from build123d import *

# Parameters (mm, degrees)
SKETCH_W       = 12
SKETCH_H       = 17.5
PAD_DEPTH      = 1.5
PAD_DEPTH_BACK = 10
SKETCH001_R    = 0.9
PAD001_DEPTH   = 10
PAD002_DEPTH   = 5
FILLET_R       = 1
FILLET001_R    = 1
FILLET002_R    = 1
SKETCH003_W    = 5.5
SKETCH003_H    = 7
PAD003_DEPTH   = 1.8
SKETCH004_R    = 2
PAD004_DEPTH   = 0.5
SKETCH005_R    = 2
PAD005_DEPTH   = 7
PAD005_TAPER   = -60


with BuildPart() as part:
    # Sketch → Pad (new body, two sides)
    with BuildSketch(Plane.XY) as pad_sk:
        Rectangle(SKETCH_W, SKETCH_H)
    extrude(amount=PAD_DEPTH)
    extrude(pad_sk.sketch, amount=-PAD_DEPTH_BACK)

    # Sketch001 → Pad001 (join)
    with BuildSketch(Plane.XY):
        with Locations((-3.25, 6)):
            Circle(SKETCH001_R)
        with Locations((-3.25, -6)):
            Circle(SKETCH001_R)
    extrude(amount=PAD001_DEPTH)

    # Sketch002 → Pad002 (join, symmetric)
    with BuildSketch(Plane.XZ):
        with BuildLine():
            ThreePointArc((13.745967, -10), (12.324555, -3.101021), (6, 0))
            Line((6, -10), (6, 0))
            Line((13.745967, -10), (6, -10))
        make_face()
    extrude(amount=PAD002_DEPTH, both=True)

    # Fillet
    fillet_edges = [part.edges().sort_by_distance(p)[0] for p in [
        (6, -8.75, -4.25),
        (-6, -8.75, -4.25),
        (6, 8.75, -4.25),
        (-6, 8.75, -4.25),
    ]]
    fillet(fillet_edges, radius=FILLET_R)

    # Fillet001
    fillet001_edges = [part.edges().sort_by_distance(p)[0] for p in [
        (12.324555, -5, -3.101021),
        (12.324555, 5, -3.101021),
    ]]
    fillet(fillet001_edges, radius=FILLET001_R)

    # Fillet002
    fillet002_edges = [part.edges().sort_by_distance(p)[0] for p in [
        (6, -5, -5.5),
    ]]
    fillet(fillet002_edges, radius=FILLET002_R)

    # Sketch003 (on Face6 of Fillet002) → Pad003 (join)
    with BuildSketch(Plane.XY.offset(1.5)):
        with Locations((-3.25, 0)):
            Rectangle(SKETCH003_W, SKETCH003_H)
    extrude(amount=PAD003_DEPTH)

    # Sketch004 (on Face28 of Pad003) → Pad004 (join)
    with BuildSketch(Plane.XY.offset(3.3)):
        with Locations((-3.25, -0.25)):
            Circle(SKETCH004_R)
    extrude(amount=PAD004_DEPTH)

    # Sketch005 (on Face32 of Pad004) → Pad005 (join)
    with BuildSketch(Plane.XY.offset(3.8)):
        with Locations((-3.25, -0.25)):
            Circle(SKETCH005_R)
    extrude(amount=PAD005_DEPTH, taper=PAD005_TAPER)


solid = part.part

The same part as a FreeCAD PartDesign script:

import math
import FreeCAD as App
import Part
import Sketcher

V = App.Vector


def edges_at(feature, points):
    """Names of the edges that pass closest to the given points."""
    edges = feature.Shape.Edges
    near = lambda p: min(range(len(edges)), key=lambda i: edges[i].distToShape(Part.Vertex(*p))[0])
    return sorted({f"Edge{near(p) + 1}" for p in points})

doc = App.newDocument("Part")
body = doc.addObject("PartDesign::Body", "Body")

# Sketch on XY plane
sketch1 = body.newObject("Sketcher::SketchObject", "Sketch")
sketch1.AttachmentSupport = (doc.getObject("XY_Plane"), [""])
sketch1.MapMode = "FlatFace"
sketch1.addGeometry([
    Part.LineSegment(V(-6, 9, 0), V(-6, -9, 0)),
    Part.LineSegment(V(-6, -9, 0), V(6, -9, 0)),
    Part.LineSegment(V(6, -9, 0), V(6, 9, 0)),
    Part.LineSegment(V(6, 9, 0), V(-6, 9, 0)),
], False)
sketch1.addConstraint([
    Sketcher.Constraint("Coincident", 0, 2, 1, 1),
    Sketcher.Constraint("Coincident", 1, 2, 2, 1),
    Sketcher.Constraint("Coincident", 2, 2, 3, 1),
    Sketcher.Constraint("Coincident", 3, 2, 0, 1),
    Sketcher.Constraint("Vertical", 0),
    Sketcher.Constraint("Horizontal", 1),
    Sketcher.Constraint("Vertical", 2),
    Sketcher.Constraint("Horizontal", 3),
    Sketcher.Constraint("Symmetric", 0, 2, 2, 2, -1, 1),
    Sketcher.Constraint("DistanceX", 1, 1, 1, 2, 12.0),
    Sketcher.Constraint("DistanceY", 0, 2, 0, 1, 17.5),
])
pad1 = body.newObject("PartDesign::Pad", "Pad")
pad1.Profile = sketch1
pad1.Type = "TwoLengths"
pad1.Length = 1.5
pad1.Length2 = 10

# Sketch on XY plane
sketch2 = body.newObject("Sketcher::SketchObject", "Sketch001")
sketch2.AttachmentSupport = (doc.getObject("XY_Plane"), [""])
sketch2.MapMode = "FlatFace"
sketch2.addGeometry([
    Part.Circle(V(-3.2, 6, 0), V(0, 0, 1), 0.9),
    Part.Circle(V(-3.2, -6, 0), V(0, 0, 1), 0.9),
], False)
sketch2.addConstraint([
    Sketcher.Constraint("Equal", 0, 1),
    Sketcher.Constraint("Symmetric", 0, 3, 1, 3, -1),
    Sketcher.Constraint("Diameter", 0, 1.8),
    Sketcher.Constraint("DistanceY", -1, 1, 0, 3, 6.0),
    Sketcher.Constraint("DistanceX", 0, 3, -1, 1, 3.25),
])
pad2 = body.newObject("PartDesign::Pad", "Pad001")
pad2.Profile = sketch2
pad2.Length = 10

# Sketch on XZ plane
sketch3 = body.newObject("Sketcher::SketchObject", "Sketch002")
sketch3.AttachmentSupport = (doc.getObject("XZ_Plane"), [""])
sketch3.MapMode = "FlatFace"
sketch3.addGeometry([
    Part.ArcOfCircle(Part.Circle(V(6, -8, 0), V(0, 0, 1), 8), math.radians(-14), math.radians(90)),
    Part.LineSegment(V(6, 0, 0), V(6, -10, 0)),
    Part.LineSegment(V(6, -10, 0), V(14, -10, 0)),
], False)
sketch3.addConstraint([
    Sketcher.Constraint("Coincident", 0, 2, 1, 1),
    Sketcher.Constraint("Coincident", 1, 2, 2, 1),
    Sketcher.Constraint("Coincident", 2, 2, 0, 1),
    Sketcher.Constraint("Vertical", 1),
    Sketcher.Constraint("Horizontal", 2),
    Sketcher.Constraint("PointOnObject", 0, 2, -1),
    Sketcher.Constraint("Radius", 0, 8.000001),
    Sketcher.Constraint("DistanceY", 1, 2, 1, 1, 10.0),
    Sketcher.Constraint("DistanceX", -1, 1, 0, 3, 5.999999),
    Sketcher.Constraint("DistanceX", -1, 1, 0, 2, 6.0),
])
pad3 = body.newObject("PartDesign::Pad", "Pad002")
pad3.Profile = sketch3
pad3.Length = 10
pad3.Midplane = True
doc.recompute()

fillet = body.newObject("PartDesign::Fillet", "Fillet")
fillet.Base = (pad3, edges_at(pad3, [
    (6, -8.75, -4.25),
    (-6, -8.75, -4.25),
    (6, 8.75, -4.25),
    (-6, 8.75, -4.25),
]))
fillet.Radius = 1
doc.recompute()

fillet2 = body.newObject("PartDesign::Fillet", "Fillet001")
fillet2.Base = (fillet, edges_at(fillet, [(12.325, -5, -3.101), (12.325, 5, -3.101)]))
fillet2.Radius = 1
doc.recompute()

fillet3 = body.newObject("PartDesign::Fillet", "Fillet002")
fillet3.Base = (fillet2, edges_at(fillet2, [(6, -5, -5.5)]))
fillet3.Radius = 1

# Sketch on XY plane
sketch4 = body.newObject("Sketcher::SketchObject", "Sketch003")
sketch4.AttachmentSupport = (doc.getObject("XY_Plane"), [""])
sketch4.MapMode = "FlatFace"
sketch4.AttachmentOffset = App.Placement(V(0, 0, 1.5), App.Rotation())
sketch4.addGeometry([
    Part.LineSegment(V(-6, 4, 0), V(-6, -4, 0)),
    Part.LineSegment(V(-6, -4, 0), V(0, -4, 0)),
    Part.LineSegment(V(0, -4, 0), V(0, 4, 0)),
    Part.LineSegment(V(0, 4, 0), V(-6, 4, 0)),
], False)
sketch4.addConstraint([
    Sketcher.Constraint("Coincident", 0, 2, 1, 1),
    Sketcher.Constraint("Coincident", 1, 2, 2, 1),
    Sketcher.Constraint("Coincident", 2, 2, 3, 1),
    Sketcher.Constraint("Coincident", 3, 2, 0, 1),
    Sketcher.Constraint("Vertical", 0),
    Sketcher.Constraint("Horizontal", 1),
    Sketcher.Constraint("Vertical", 2),
    Sketcher.Constraint("Horizontal", 3),
    Sketcher.Constraint("DistanceY", 0, 2, 0, 1, 7.0),
    Sketcher.Constraint("DistanceX", 1, 1, 1, 2, 5.5),
    Sketcher.Constraint("DistanceX", 0, 2, -1, 1, 6.0),
    Sketcher.Constraint("DistanceY", 0, 2, -1, 1, 3.5),
])
pad4 = body.newObject("PartDesign::Pad", "Pad003")
pad4.Profile = sketch4
pad4.Length = 1.8

# Sketch on XY plane
sketch5 = body.newObject("Sketcher::SketchObject", "Sketch004")
sketch5.AttachmentSupport = (doc.getObject("XY_Plane"), [""])
sketch5.MapMode = "FlatFace"
sketch5.AttachmentOffset = App.Placement(V(0, 0, 3.3), App.Rotation())
sketch5.addGeometry(Part.Circle(V(-3.2, -0.2, 0), V(0, 0, 1), 2), False)
sketch5.addConstraint([
    Sketcher.Constraint("Diameter", 0, 4.0),
    Sketcher.Constraint("DistanceX", 0, 3, -1, 1, 3.25),
    Sketcher.Constraint("DistanceY", 0, 3, -1, 1, 0.25),
])
pad5 = body.newObject("PartDesign::Pad", "Pad004")
pad5.Profile = sketch5
pad5.Length = 0.5

# Sketch on XY plane
sketch6 = body.newObject("Sketcher::SketchObject", "Sketch005")
sketch6.AttachmentSupport = (doc.getObject("XY_Plane"), [""])
sketch6.MapMode = "FlatFace"
sketch6.AttachmentOffset = App.Placement(V(0, 0, 3.8), App.Rotation())
sketch6.addGeometry(Part.Circle(V(-3.2, -0.2, 0), V(0, 0, 1), 2), False)
sketch6.addConstraint([
    Sketcher.Constraint("Diameter", 0, 4.0),
    Sketcher.Constraint("DistanceX", 0, 3, -1, 1, 3.25),
    Sketcher.Constraint("DistanceY", 0, 3, -1, 1, 0.25),
])
pad6 = body.newObject("PartDesign::Pad", "Pad005")
pad6.Profile = sketch6
pad6.Length = 7
pad6.TaperAngle = 60

doc.recompute()
